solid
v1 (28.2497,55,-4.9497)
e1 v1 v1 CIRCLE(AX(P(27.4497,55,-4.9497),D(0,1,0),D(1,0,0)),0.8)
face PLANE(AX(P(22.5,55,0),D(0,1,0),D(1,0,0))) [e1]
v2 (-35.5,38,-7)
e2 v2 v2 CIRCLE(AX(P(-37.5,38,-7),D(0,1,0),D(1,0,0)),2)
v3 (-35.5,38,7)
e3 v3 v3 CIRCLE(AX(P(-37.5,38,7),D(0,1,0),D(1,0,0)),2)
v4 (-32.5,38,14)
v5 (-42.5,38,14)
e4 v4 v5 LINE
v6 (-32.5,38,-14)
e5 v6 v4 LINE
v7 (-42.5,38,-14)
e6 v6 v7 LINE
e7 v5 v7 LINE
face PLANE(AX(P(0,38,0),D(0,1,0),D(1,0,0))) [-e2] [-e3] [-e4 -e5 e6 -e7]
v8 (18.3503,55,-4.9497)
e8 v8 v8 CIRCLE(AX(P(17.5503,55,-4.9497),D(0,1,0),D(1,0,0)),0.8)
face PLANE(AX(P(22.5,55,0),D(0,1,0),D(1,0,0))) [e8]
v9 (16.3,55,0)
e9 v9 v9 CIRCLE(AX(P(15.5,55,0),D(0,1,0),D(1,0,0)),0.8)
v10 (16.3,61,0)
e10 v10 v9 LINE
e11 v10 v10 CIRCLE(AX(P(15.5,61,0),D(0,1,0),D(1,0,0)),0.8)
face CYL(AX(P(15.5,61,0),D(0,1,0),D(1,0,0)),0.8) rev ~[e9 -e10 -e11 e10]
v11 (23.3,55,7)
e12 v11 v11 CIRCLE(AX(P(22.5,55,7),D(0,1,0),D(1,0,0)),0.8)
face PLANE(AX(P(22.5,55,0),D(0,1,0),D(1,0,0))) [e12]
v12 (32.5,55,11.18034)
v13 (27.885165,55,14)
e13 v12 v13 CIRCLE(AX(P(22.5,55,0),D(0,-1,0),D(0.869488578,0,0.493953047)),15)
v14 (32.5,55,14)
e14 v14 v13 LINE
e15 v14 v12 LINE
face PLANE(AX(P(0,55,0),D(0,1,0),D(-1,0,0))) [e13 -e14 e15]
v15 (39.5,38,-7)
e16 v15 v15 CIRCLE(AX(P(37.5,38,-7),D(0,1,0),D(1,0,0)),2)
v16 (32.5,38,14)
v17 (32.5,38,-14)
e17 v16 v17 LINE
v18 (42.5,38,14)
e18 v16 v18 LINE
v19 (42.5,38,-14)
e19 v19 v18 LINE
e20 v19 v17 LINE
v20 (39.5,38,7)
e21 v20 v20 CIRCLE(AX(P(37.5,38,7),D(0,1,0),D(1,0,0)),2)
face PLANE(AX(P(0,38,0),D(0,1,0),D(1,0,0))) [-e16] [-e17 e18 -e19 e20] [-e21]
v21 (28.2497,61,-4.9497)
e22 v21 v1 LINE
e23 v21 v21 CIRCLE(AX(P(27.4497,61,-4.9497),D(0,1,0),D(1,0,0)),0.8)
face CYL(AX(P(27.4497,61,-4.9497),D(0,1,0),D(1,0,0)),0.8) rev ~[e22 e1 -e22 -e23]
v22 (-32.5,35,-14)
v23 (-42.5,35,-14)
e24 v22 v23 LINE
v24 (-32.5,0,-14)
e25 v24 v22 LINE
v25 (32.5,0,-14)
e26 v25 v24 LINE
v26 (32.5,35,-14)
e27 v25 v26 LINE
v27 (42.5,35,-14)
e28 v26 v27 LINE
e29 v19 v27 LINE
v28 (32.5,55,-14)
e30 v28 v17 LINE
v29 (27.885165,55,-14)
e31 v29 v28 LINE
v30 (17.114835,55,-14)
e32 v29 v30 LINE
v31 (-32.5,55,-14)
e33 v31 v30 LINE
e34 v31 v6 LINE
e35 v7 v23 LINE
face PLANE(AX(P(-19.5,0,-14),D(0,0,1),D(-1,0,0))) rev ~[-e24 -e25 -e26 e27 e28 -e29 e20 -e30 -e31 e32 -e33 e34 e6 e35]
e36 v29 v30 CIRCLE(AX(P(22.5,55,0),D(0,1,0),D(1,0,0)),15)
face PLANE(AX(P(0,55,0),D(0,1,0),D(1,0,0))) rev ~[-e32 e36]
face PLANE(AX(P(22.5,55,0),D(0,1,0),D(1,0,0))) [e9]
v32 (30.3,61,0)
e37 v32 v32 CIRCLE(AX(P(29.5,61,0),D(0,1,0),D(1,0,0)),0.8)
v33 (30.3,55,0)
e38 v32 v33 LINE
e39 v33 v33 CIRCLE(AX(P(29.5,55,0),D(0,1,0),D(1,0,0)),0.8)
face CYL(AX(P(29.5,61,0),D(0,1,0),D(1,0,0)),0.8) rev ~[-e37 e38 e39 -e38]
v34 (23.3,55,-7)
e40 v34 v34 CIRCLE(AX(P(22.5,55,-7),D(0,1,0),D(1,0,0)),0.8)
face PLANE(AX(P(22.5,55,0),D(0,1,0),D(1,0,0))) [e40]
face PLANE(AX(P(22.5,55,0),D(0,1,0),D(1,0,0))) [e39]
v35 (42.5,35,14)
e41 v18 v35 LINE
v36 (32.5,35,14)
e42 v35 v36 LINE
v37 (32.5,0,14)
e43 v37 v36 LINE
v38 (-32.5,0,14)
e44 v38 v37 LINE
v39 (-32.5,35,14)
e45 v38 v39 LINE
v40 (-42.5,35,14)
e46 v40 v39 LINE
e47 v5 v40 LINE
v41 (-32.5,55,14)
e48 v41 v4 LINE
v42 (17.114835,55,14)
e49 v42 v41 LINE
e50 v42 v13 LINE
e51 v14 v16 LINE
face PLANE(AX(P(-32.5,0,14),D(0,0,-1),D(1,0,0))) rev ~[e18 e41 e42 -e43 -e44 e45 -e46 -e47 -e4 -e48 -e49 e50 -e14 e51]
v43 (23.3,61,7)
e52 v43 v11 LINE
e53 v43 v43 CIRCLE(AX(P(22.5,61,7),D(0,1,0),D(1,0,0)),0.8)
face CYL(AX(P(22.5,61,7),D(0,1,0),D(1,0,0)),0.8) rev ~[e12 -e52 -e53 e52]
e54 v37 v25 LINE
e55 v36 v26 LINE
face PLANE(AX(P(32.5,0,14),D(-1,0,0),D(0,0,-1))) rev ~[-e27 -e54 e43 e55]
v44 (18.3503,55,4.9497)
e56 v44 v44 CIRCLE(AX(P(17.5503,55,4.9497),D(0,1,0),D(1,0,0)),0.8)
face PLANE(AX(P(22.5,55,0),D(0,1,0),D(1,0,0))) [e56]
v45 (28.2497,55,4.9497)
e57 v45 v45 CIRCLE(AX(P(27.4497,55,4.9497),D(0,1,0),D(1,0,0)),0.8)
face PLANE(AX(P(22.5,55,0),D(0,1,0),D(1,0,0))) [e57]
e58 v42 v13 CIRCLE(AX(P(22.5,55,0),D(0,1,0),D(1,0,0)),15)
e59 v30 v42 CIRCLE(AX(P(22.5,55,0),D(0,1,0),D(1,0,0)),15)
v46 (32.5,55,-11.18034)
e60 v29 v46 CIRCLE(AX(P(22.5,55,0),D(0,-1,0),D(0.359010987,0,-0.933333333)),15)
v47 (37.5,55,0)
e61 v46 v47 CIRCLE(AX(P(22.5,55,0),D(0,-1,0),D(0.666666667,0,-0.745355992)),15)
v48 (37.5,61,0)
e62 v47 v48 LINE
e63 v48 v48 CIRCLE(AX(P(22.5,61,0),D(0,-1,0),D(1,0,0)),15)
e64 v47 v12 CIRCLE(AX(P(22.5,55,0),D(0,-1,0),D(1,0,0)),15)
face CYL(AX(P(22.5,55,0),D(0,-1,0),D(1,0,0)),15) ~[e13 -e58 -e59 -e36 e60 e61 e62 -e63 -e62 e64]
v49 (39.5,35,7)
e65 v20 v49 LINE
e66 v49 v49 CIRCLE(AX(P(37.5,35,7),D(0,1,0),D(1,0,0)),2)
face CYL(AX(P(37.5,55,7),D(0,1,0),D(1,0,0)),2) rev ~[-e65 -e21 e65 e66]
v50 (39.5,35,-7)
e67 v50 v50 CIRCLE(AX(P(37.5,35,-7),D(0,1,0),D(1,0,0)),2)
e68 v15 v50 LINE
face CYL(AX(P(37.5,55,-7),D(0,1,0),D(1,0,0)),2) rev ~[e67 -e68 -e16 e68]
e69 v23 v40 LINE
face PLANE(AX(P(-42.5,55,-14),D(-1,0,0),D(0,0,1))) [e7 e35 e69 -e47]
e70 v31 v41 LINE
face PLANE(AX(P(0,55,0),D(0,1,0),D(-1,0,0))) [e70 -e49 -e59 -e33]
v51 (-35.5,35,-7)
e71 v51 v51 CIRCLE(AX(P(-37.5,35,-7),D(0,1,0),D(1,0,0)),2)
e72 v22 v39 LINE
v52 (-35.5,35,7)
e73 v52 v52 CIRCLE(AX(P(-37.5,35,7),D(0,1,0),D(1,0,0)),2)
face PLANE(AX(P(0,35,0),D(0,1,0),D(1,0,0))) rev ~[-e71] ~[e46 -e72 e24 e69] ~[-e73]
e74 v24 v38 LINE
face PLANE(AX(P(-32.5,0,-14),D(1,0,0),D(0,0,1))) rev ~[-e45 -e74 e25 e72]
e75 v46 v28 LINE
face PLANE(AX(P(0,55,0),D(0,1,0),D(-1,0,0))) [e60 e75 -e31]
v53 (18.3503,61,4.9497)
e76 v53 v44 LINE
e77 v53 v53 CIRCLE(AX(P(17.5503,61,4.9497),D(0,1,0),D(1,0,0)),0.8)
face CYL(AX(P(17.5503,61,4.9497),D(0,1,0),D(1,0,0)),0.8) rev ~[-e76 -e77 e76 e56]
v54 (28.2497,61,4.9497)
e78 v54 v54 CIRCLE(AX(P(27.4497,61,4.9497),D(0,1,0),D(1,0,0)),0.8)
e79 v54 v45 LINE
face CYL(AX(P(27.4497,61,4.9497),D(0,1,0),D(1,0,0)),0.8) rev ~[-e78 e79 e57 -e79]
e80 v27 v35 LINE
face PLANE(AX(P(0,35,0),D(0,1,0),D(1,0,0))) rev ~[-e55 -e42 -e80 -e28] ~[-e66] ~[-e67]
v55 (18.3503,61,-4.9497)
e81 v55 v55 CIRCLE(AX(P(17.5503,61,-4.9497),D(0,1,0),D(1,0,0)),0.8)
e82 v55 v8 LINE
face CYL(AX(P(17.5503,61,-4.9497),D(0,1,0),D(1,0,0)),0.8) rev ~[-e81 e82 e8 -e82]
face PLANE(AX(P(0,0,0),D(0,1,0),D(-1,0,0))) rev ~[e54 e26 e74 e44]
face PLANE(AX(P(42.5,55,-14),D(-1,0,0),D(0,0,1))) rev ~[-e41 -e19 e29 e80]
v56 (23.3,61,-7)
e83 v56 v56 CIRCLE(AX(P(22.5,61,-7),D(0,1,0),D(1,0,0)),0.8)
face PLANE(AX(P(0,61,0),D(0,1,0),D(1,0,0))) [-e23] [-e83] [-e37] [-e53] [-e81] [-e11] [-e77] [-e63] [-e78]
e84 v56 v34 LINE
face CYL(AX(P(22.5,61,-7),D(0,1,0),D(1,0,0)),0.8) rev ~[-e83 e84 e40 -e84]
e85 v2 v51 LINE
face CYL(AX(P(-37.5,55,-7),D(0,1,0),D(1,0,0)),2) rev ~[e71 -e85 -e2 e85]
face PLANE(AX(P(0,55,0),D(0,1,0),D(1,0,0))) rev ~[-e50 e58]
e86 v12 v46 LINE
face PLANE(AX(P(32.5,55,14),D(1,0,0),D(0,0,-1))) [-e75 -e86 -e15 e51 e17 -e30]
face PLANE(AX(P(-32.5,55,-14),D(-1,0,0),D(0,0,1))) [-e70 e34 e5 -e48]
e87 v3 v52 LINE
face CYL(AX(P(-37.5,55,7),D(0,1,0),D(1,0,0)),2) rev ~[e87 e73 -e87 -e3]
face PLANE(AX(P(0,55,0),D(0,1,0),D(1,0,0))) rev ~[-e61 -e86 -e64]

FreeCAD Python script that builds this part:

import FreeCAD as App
import Part
import Sketcher

V = App.Vector


def add_polygon(sketch, points):
    """Adds a closed chain of lines whose ends are joined by coincident constraints."""
    first, n = sketch.GeometryCount, len(points)
    for a, b in zip(points, points[1:] + points[:1]):
        sketch.addGeometry(Part.LineSegment(App.Vector(*a, 0), App.Vector(*b, 0)), False)
    for i in range(n):
        sketch.addConstraint(Sketcher.Constraint("Coincident", first + i, 2, first + (i + 1) % n, 1))

doc = App.newDocument("Part")
body = doc.addObject("PartDesign::Body", "Body")

# Sketch on XZ plane
sketch1 = body.newObject("Sketcher::SketchObject", "Sketch")
sketch1.AttachmentSupport = (doc.getObject("XZ_Plane"), [""])
sketch1.MapMode = "FlatFace"
add_polygon(sketch1, [(-32, -14), (-32, 14), (32, 14), (32, -14)])  # lines 0-3
sketch1.addConstraint(Sketcher.Constraint("Vertical", 0))
sketch1.addConstraint(Sketcher.Constraint("Horizontal", 1))
sketch1.addConstraint(Sketcher.Constraint("Vertical", 2))
sketch1.addConstraint(Sketcher.Constraint("Horizontal", 3))
sketch1.addConstraint(Sketcher.Constraint("Symmetric", 0, 2, 2, 2, -1, 1))
sketch1.addConstraint(Sketcher.Constraint("DistanceX", 1, 1, 1, 2, 65.0))
sketch1.addConstraint(Sketcher.Constraint("DistanceY", 0, 1, 0, 2, 28.0))
pad1 = body.newObject("PartDesign::Pad", "Pad")
pad1.Profile = sketch1
pad1.Length = 55
pad1.Reversed = True

# Sketch on XZ plane
sketch2 = body.newObject("Sketcher::SketchObject", "Sketch001")
sketch2.AttachmentSupport = (doc.getObject("XZ_Plane"), [""])
sketch2.MapMode = "FlatFace"
sketch2.AttachmentOffset = App.Placement(V(0, 0, -55), App.Rotation())
sketch2.addGeometry(Part.Circle(V(22, 0, 0), V(0, 0, 1), 15), False)
sketch2.addConstraint(Sketcher.Constraint("PointOnObject", 0, 3, -1))
sketch2.addConstraint(Sketcher.Constraint("Diameter", 0, 30.0))
sketch2.addConstraint(Sketcher.Constraint("DistanceX", -1, 1, 0, 3, 22.5))
pad2 = body.newObject("PartDesign::Pad", "Pad001")
pad2.Profile = sketch2
pad2.Length = 6
pad2.Reversed = True

# Sketch on XZ plane
sketch3 = body.newObject("Sketcher::SketchObject", "Sketch002")
sketch3.AttachmentSupport = (doc.getObject("XZ_Plane"), [""])
sketch3.MapMode = "FlatFace"
sketch3.AttachmentOffset = App.Placement(V(0, 0, -61), App.Rotation())
sketch3.addGeometry(Part.Circle(V(15.5, 0, 0), V(0, 0, 1), 0.8), False)
sketch3.addGeometry(Part.Circle(V(17.6, 4.9, 0), V(0, 0, 1), 0.8), False)
sketch3.addGeometry(Part.Circle(V(22.5, 7, 0), V(0, 0, 1), 0.8), False)
sketch3.addGeometry(Part.Circle(V(27.4, 4.9, 0), V(0, 0, 1), 0.8), False)
sketch3.addGeometry(Part.Circle(V(29.5, 0, 0), V(0, 0, 1), 0.8), False)
sketch3.addGeometry(Part.Circle(V(27.4, -4.9, 0), V(0, 0, 1), 0.8), False)
sketch3.addGeometry(Part.Circle(V(22.5, -7, 0), V(0, 0, 1), 0.8), False)
sketch3.addGeometry(Part.Circle(V(17.6, -4.9, 0), V(0, 0, 1), 0.8), False)
sketch3.addConstraint(Sketcher.Constraint("Equal", 0, 1))
sketch3.addConstraint(Sketcher.Constraint("Equal", 1, 2))
sketch3.addConstraint(Sketcher.Constraint("Equal", 2, 3))
sketch3.addConstraint(Sketcher.Constraint("Equal", 3, 4))
sketch3.addConstraint(Sketcher.Constraint("Equal", 4, 5))
sketch3.addConstraint(Sketcher.Constraint("Equal", 5, 6))
sketch3.addConstraint(Sketcher.Constraint("Equal", 6, 7))
sketch3.addConstraint(Sketcher.Constraint("Symmetric", 3, 3, 5, 3, -1))
sketch3.addConstraint(Sketcher.Constraint("Symmetric", 2, 3, 6, 3, -1))
sketch3.addConstraint(Sketcher.Constraint("Symmetric", 1, 3, 7, 3, -1))
sketch3.addConstraint(Sketcher.Constraint("PointOnObject", 0, 3, -1))
sketch3.addConstraint(Sketcher.Constraint("PointOnObject", 4, 3, -1))
sketch3.addConstraint(Sketcher.Constraint("Horizontal", 1, 3, 3, 3))
sketch3.addConstraint(Sketcher.Constraint("Diameter", 0, 1.6))
sketch3.addConstraint(Sketcher.Constraint("DistanceY", -1, 1, 2, 3, 7.0))
sketch3.addConstraint(Sketcher.Constraint("DistanceX", 0, 3, 2, 3, 7.0))
sketch3.addConstraint(Sketcher.Constraint("DistanceX", 2, 3, 4, 3, 7.0))
sketch3.addConstraint(Sketcher.Constraint("DistanceX", -1, 1, 0, 3, 15.5))
sketch3.addConstraint(Sketcher.Constraint("DistanceX", -1, 1, 1, 3, 17.5503))
sketch3.addConstraint(Sketcher.Constraint("DistanceY", -1, 1, 1, 3, 4.9497))
sketch3.addConstraint(Sketcher.Constraint("DistanceX", -1, 1, 3, 3, 27.4497))
pocket1 = body.newObject("PartDesign::Pocket", "Pocket")
pocket1.Profile = sketch3
pocket1.Length = 6
pocket1.Reversed = True

# Sketch on XZ plane
sketch4 = body.newObject("Sketcher::SketchObject", "Sketch003")
sketch4.AttachmentSupport = (doc.getObject("XZ_Plane"), [""])
sketch4.MapMode = "FlatFace"
sketch4.AttachmentOffset = App.Placement(V(0, 0, -55), App.Rotation())
add_polygon(sketch4, [(32.5, -14), (32.5, 14), (42.5, 14), (42.5, -14)])  # lines 0-3
sketch4.addGeometry(Part.Circle(V(37.5, 7, 0), V(0, 0, 1), 2), False)  # 4
sketch4.addGeometry(Part.Circle(V(37.5, -7, 0), V(0, 0, 1), 2), False)  # 5
add_polygon(sketch4, [(-42.5, 14), (-32.5, 14), (-32.5, -14), (-42.5, -14)])  # lines 6-9
sketch4.addGeometry(Part.Circle(V(-37.5, 7, 0), V(0, 0, 1), 2), False)  # 10
sketch4.addGeometry(Part.Circle(V(-37.5, -7, 0), V(0, 0, 1), 2), False)  # 11
sketch4.addConstraint(Sketcher.Constraint("Vertical", 0))
sketch4.addConstraint(Sketcher.Constraint("Horizontal", 1))
sketch4.addConstraint(Sketcher.Constraint("Vertical", 2))
sketch4.addConstraint(Sketcher.Constraint("Horizontal", 3))
sketch4.addConstraint(Sketcher.Constraint("Horizontal", 6))
sketch4.addConstraint(Sketcher.Constraint("Vertical", 7))
sketch4.addConstraint(Sketcher.Constraint("Horizontal", 8))
sketch4.addConstraint(Sketcher.Constraint("Vertical", 9))
sketch4.addConstraint(Sketcher.Constraint("Equal", 4, 5))
sketch4.addConstraint(Sketcher.Constraint("Equal", 5, 10))
sketch4.addConstraint(Sketcher.Constraint("Equal", 10, 11))
sketch4.addConstraint(Sketcher.Constraint("Symmetric", 5, 3, 10, 3, -1, 1))
sketch4.addConstraint(Sketcher.Constraint("Symmetric", 4, 3, 11, 3, -1, 1))
sketch4.addConstraint(Sketcher.Constraint("Symmetric", 3, 2, 6, 2, -1, 1))
sketch4.addConstraint(Sketcher.Constraint("Symmetric", 1, 2, 8, 2, -1, 1))
sketch4.addConstraint(Sketcher.Constraint("Symmetric", 4, 3, 10, 3, -2))
sketch4.addConstraint(Sketcher.Constraint("Horizontal", 1, 2, 6, 2))
sketch4.addConstraint(Sketcher.Constraint("Diameter", 4, 4.0))
sketch4.addConstraint(Sketcher.Constraint("DistanceY", -1, 1, 4, 3, 7.0))
sketch4.addConstraint(Sketcher.Constraint("DistanceY", -1, 1, 0, 2, 14.0))
sketch4.addConstraint(Sketcher.Constraint("DistanceX", 0, 2, 4, 3, 5.0))
sketch4.addConstraint(Sketcher.Constraint("DistanceX", 4, 3, 1, 2, 5.0))
sketch4.addConstraint(Sketcher.Constraint("DistanceX", 10, 3, 4, 3, 75.0))
pad3 = body.newObject("PartDesign::Pad", "Pad002")
pad3.Profile = sketch4
pad3.Length = 20

# Sketch on XZ plane
sketch5 = body.newObject("Sketcher::SketchObject", "Sketch004")
sketch5.AttachmentSupport = (doc.getObject("XZ_Plane"), [""])
sketch5.MapMode = "FlatFace"
sketch5.AttachmentOffset = App.Placement(V(0, 0, -55), App.Rotation())
add_polygon(sketch5, [(42, 14), (42, -14), (32, -14), (32, 14)])  # lines 0-3
add_polygon(sketch5, [(-32, 14), (-32, -14), (-42, -14), (-42, 14)])  # lines 4-7
sketch5.addConstraint(Sketcher.Constraint("Vertical", 0))
sketch5.addConstraint(Sketcher.Constraint("Horizontal", 1))
sketch5.addConstraint(Sketcher.Constraint("Vertical", 2))
sketch5.addConstraint(Sketcher.Constraint("Horizontal", 3))
sketch5.addConstraint(Sketcher.Constraint("Vertical", 4))
sketch5.addConstraint(Sketcher.Constraint("Horizontal", 5))
sketch5.addConstraint(Sketcher.Constraint("Vertical", 6))
sketch5.addConstraint(Sketcher.Constraint("Horizontal", 7))
sketch5.addConstraint(Sketcher.Constraint("Symmetric", 2, 2, 4, 2, -1, 1))
sketch5.addConstraint(Sketcher.Constraint("Symmetric", 0, 2, 6, 2, -1, 1))
sketch5.addConstraint(Sketcher.Constraint("Horizontal", 1, 2, 4, 2))
sketch5.addConstraint(Sketcher.Constraint("DistanceX", 1, 2, 1, 1, 10.0))
sketch5.addConstraint(Sketcher.Constraint("DistanceY", 0, 2, 0, 1, 28.0))
sketch5.addConstraint(Sketcher.Constraint("DistanceX", 4, 2, 1, 2, 65.0))
pocket2 = body.newObject("PartDesign::Pocket", "Pocket001")
pocket2.Profile = sketch5
pocket2.Length = 17
pocket2.Reversed = True

doc.recompute()
